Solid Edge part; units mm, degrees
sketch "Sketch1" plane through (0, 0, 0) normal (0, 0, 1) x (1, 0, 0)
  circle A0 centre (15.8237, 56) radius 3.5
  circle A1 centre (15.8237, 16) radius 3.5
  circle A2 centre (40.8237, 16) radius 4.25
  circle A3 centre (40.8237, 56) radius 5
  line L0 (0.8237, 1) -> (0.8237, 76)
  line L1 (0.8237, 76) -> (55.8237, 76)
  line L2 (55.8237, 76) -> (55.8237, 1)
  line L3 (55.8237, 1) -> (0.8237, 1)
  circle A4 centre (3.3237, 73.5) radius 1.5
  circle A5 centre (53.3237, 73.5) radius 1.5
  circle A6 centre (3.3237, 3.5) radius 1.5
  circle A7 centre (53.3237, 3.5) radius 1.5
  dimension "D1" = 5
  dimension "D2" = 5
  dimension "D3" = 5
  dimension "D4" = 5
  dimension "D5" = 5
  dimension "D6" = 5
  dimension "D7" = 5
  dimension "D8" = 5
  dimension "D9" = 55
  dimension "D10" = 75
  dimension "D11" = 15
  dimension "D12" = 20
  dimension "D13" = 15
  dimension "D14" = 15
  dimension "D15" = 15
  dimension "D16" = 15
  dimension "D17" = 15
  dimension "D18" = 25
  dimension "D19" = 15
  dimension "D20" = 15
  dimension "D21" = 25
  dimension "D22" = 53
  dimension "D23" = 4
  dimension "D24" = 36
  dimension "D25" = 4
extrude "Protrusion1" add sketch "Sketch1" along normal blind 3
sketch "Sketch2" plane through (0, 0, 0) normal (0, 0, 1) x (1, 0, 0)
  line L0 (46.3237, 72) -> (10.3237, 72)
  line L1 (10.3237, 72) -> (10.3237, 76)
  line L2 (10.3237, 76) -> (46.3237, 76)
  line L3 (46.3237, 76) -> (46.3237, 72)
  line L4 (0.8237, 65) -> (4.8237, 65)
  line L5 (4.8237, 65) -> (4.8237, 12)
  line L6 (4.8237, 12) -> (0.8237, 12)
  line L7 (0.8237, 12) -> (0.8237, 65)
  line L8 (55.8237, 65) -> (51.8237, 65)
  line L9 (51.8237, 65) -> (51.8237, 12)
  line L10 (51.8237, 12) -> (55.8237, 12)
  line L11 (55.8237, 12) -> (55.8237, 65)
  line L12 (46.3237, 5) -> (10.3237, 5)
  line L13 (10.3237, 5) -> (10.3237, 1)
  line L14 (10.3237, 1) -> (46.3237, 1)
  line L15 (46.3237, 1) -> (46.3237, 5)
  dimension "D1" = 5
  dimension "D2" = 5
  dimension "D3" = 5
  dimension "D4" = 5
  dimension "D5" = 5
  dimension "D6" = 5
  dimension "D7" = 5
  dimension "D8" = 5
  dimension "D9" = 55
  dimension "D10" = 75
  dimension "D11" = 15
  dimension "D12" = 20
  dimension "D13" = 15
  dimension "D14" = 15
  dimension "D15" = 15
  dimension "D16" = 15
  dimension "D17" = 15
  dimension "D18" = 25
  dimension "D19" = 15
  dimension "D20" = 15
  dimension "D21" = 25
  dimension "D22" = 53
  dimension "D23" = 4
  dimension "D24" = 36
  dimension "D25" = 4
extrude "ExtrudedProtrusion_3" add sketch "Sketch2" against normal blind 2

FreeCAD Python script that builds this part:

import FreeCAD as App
import Part
import Sketcher


def add_polygon(sketch, points):
    """Adds a closed chain of lines whose ends are joined by coincident constraints."""
    first, n = sketch.GeometryCount, len(points)
    for a, b in zip(points, points[1:] + points[:1]):
        sketch.addGeometry(Part.LineSegment(App.Vector(*a, 0), App.Vector(*b, 0)), False)
    for i in range(n):
        sketch.addConstraint(Sketcher.Constraint("Coincident", first + i, 2, first + (i + 1) % n, 1))

doc = App.newDocument("Part")
body = doc.addObject("PartDesign::Body", "Body")

sketch1 = doc.addObject("Sketcher::SketchObject", "Sketch")
body.addObject(sketch1)
sketch1.AttachmentSupport = (doc.XY_Plane, [""])
sketch1.MapMode = "FlatFace"
add_polygon(sketch1, [(0.8, 76), (0.8, 1), (55.8, 1), (55.8, 76)])
sketch1.addGeometry(Part.Circle(App.Vector(3.3, 3.5, 0), App.Vector(0, 0, 1), 1.5), False)
sketch1.addGeometry(Part.Circle(App.Vector(15.8, 16, 0), App.Vector(0, 0, 1), 3.5), False)
sketch1.addGeometry(Part.Circle(App.Vector(40.8, 16, 0), App.Vector(0, 0, 1), 4.2), False)
sketch1.addGeometry(Part.Circle(App.Vector(53.3, 3.5, 0), App.Vector(0, 0, 1), 1.5), False)
sketch1.addGeometry(Part.Circle(App.Vector(15.8, 56, 0), App.Vector(0, 0, 1), 3.5), False)
sketch1.addGeometry(Part.Circle(App.Vector(3.3, 73.5, 0), App.Vector(0, 0, 1), 1.5), False)
sketch1.addGeometry(Part.Circle(App.Vector(40.8, 56, 0), App.Vector(0, 0, 1), 5), False)
sketch1.addGeometry(Part.Circle(App.Vector(53.3, 73.5, 0), App.Vector(0, 0, 1), 1.5), False)
sketch1.addConstraint([
    Sketcher.Constraint("Vertical", 0),
    Sketcher.Constraint("Horizontal", 1),
    Sketcher.Constraint("Vertical", 2),
    Sketcher.Constraint("Horizontal", 3),
    Sketcher.Constraint("Equal", 4, 7),
    Sketcher.Constraint("Equal", 5, 8),
    Sketcher.Constraint("Equal", 7, 9),
    Sketcher.Constraint("Equal", 9, 11),
    Sketcher.Constraint("Horizontal", 5, 3, 6, 3),
    Sketcher.Constraint("Horizontal", 4, 3, 7, 3),
    Sketcher.Constraint("Horizontal", 8, 3, 10, 3),
    Sketcher.Constraint("Horizontal", 9, 3, 11, 3),
    Sketcher.Constraint("Vertical", 5, 3, 8, 3),
    Sketcher.Constraint("Vertical", 4, 3, 9, 3),
    Sketcher.Constraint("Vertical", 6, 3, 10, 3),
    Sketcher.Constraint("Vertical", 7, 3, 11, 3),
    Sketcher.Constraint("Diameter", 4, 3.0),
    Sketcher.Constraint("Diameter", 5, 7.0),
    Sketcher.Constraint("Diameter", 10, 10.0),
    Sketcher.Constraint("Diameter", 6, 8.5),
    Sketcher.Constraint("DistanceX", 1, 1, 1, 2, 55.0),
    Sketcher.Constraint("DistanceY", 0, 2, 0, 1, 75.0),
    Sketcher.Constraint("DistanceY", -1, 1, 5, 3, 16.0),
    Sketcher.Constraint("DistanceY", -1, 1, 8, 3, 56.0),
    Sketcher.Constraint("DistanceY", -1, 1, 0, 2, 1.0),
    Sketcher.Constraint("DistanceX", 5, 3, 6, 3, 25.0),
    Sketcher.Constraint("DistanceX", 4, 3, 7, 3, 50.0),
    Sketcher.Constraint("DistanceY", 4, 3, 9, 3, 70.0),
    Sketcher.Constraint("DistanceX", 0, 2, 5, 3, 15.0),
    Sketcher.Constraint("DistanceY", -1, 1, 4, 3, 3.5),
    Sketcher.Constraint("DistanceX", 4, 3, 5, 3, 12.5),
    Sketcher.Constraint("DistanceX", -1, 1, 4, 3, 3.3237),
])
pad1 = doc.addObject("PartDesign::Pad", "Pad")
body.addObject(pad1)
pad1.Profile = sketch1
pad1.Length = 3

sketch2 = doc.addObject("Sketcher::SketchObject", "Sketch001")
body.addObject(sketch2)
sketch2.AttachmentSupport = (doc.XY_Plane, [""])
sketch2.MapMode = "FlatFace"
add_polygon(sketch2, [(10.3, 72), (46.3, 72), (46.3, 76), (10.3, 76)])
add_polygon(sketch2, [(4.8, 65), (0.8, 65), (0.8, 12), (4.8, 12)])
add_polygon(sketch2, [(55.8, 12), (55.8, 65), (51.8, 65), (51.8, 12)])
add_polygon(sketch2, [(46.3, 1), (46.3, 5), (10.3, 5), (10.3, 1)])
sketch2.addConstraint([
    Sketcher.Constraint("Horizontal", 0),
    Sketcher.Constraint("Vertical", 1),
    Sketcher.Constraint("Horizontal", 2),
    Sketcher.Constraint("Vertical", 3),
    Sketcher.Constraint("Horizontal", 4),
    Sketcher.Constraint("Vertical", 5),
    Sketcher.Constraint("Horizontal", 6),
    Sketcher.Constraint("Vertical", 7),
    Sketcher.Constraint("Vertical", 8),
    Sketcher.Constraint("Horizontal", 9),
    Sketcher.Constraint("Vertical", 10),
    Sketcher.Constraint("Horizontal", 11),
    Sketcher.Constraint("Vertical", 12),
    Sketcher.Constraint("Horizontal", 13),
    Sketcher.Constraint("Vertical", 14),
    Sketcher.Constraint("Horizontal", 15),
    Sketcher.Constraint("Horizontal", 7, 2, 8, 2),
    Sketcher.Constraint("Horizontal", 6, 2, 10, 2),
    Sketcher.Constraint("Vertical", 1, 2, 12, 2),
    Sketcher.Constraint("Vertical", 3, 2, 13, 2),
    Sketcher.Constraint("Equal", 6, 9),
    Sketcher.Constraint("Equal", 11, 1),
    Sketcher.Constraint("Equal", 3, 12),
    Sketcher.Constraint("DistanceX", 0, 1, 0, 2, 36.0),
    Sketcher.Constraint("DistanceX", 4, 2, 4, 1, 4.0),
    Sketcher.Constraint("DistanceY", 5, 2, 5, 1, 53.0),
    Sketcher.Constraint("DistanceY", -1, 1, 0, 2, 72.0),
    Sketcher.Constraint("DistanceY", -1, 1, 4, 2, 65.0),
    Sketcher.Constraint("DistanceY", -1, 1, 12, 2, 5.0),
    Sketcher.Constraint("DistanceX", 7, 2, 8, 2, 51.0),
    Sketcher.Constraint("DistanceX", 4, 2, 3, 2, 9.5),
    Sketcher.Constraint("DistanceX", -1, 1, 0, 2, 46.3237),
])
pad2 = doc.addObject("PartDesign::Pad", "Pad001")
body.addObject(pad2)
pad2.Profile = sketch2
pad2.Length = 2
pad2.Reversed = True

doc.recompute()
